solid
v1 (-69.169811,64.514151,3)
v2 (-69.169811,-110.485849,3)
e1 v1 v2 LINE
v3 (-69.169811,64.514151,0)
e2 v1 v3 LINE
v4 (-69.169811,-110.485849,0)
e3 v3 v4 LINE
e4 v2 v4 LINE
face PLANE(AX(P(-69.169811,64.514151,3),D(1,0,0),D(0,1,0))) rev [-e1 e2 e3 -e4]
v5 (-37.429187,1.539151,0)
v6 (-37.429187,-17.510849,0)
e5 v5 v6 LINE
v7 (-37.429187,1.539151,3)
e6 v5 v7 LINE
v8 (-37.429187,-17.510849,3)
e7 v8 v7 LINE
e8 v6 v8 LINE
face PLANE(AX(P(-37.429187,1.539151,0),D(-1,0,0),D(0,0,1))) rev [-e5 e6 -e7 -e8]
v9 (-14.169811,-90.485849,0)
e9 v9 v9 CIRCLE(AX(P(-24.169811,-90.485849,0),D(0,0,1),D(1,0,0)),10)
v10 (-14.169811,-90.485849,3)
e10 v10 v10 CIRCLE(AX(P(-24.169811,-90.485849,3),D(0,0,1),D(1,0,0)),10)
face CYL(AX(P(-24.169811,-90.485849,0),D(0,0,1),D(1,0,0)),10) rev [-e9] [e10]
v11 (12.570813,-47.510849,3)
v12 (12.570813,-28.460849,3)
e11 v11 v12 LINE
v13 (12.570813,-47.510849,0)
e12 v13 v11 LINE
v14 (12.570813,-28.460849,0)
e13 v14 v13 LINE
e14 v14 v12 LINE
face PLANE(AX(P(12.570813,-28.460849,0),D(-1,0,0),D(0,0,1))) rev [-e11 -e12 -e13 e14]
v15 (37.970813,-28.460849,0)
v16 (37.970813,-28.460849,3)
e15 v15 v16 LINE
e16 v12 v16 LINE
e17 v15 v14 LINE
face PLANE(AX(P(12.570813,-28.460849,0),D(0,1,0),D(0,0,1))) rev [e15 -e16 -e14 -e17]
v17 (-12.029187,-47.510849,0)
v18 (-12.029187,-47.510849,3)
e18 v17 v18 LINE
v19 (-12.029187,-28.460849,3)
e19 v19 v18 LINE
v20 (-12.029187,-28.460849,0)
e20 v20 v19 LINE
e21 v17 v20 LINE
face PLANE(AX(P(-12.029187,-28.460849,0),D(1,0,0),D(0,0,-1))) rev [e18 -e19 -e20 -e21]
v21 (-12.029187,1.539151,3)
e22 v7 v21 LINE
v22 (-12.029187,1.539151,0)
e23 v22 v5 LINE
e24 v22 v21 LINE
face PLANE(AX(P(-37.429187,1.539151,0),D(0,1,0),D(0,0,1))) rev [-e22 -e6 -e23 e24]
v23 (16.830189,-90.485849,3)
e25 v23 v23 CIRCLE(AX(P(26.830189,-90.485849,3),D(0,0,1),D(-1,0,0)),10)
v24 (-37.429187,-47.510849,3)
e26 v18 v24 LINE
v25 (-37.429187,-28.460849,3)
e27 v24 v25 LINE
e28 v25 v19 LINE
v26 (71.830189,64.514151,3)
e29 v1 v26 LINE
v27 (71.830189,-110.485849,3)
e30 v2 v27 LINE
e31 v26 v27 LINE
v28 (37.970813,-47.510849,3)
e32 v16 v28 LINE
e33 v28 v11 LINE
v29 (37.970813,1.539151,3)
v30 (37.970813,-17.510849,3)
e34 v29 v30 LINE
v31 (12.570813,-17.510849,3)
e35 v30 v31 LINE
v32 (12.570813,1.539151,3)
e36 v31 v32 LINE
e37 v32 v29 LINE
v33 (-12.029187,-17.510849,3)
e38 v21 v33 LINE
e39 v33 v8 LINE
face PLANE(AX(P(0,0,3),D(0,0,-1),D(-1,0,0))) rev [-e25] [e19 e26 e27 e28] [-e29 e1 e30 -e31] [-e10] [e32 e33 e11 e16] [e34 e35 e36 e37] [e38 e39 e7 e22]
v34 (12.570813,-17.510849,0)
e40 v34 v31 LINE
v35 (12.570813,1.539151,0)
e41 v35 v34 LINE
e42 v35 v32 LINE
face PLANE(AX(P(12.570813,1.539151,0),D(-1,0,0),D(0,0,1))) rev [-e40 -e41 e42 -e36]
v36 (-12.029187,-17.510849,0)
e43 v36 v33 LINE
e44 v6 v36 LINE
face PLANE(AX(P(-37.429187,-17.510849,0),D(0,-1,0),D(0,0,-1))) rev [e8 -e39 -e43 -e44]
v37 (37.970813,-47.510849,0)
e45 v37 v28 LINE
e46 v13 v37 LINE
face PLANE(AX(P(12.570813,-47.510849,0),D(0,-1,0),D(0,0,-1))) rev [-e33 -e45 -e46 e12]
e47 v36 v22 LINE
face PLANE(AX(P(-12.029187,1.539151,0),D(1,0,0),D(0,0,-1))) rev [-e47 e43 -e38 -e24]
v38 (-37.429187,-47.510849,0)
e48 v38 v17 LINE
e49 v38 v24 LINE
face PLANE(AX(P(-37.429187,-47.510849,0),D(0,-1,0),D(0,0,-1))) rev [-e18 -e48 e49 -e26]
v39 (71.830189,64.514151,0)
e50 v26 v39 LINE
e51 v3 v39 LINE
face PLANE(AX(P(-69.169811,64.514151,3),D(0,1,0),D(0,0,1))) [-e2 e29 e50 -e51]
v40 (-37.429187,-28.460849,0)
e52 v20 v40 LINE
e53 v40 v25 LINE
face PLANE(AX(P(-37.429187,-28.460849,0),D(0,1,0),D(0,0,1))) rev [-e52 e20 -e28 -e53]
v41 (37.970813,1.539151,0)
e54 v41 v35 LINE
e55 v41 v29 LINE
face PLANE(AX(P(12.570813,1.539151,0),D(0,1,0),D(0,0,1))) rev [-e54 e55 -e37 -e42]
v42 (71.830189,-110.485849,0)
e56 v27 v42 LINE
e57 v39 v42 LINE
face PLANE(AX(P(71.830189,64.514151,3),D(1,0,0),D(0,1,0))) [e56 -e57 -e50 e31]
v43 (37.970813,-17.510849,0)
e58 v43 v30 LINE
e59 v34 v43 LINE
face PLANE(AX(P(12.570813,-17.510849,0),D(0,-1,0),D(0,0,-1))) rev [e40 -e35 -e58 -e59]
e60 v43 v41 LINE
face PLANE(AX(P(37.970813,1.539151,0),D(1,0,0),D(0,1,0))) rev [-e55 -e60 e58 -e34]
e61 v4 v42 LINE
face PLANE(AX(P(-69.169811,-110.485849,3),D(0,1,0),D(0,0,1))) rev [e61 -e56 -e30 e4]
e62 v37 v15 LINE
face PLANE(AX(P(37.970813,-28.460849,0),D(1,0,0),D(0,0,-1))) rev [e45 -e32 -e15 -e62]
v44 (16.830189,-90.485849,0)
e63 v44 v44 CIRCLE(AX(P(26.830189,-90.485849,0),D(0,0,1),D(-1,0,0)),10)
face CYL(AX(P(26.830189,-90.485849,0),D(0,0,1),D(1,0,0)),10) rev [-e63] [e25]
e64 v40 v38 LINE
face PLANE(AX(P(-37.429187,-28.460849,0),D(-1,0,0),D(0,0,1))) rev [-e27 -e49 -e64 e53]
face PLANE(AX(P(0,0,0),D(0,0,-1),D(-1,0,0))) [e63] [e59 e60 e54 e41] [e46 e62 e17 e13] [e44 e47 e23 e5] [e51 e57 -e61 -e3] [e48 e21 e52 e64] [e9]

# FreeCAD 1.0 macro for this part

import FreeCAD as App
import Part
import Sketcher
Q = App.Units.Quantity


def add_polygon(sketch, points):
    """Adds a closed chain of lines whose ends are joined by coincident constraints."""
    first, n = sketch.GeometryCount, len(points)
    for a, b in zip(points, points[1:] + points[:1]):
        sketch.addGeometry(Part.LineSegment(App.Vector(*a, 0), App.Vector(*b, 0)), False)
    for i in range(n):
        sketch.addConstraint(Sketcher.Constraint("Coincident", first + i, 2, first + (i + 1) % n, 1))

doc = App.newDocument("Part")
body = doc.addObject("PartDesign::Body", "Body")

# Sketch on XY plane
sketch1 = body.newObject("Sketcher::SketchObject", "Sketch")
sketch1.AttachmentSupport = (doc.getObject("XY_Plane"), [""])
sketch1.MapMode = "FlatFace"
add_polygon(sketch1, [(-69.169811, 64.514151), (-69.169811, -110.485849), (71.830189, -110.485849), (71.830189, 64.514151)])  # lines 0-3
sketch1.addConstraint([
    Sketcher.Constraint("Vertical", 0),
    Sketcher.Constraint("Horizontal", 1),
    Sketcher.Constraint("Vertical", 2),
    Sketcher.Constraint("Horizontal", 3),
    Sketcher.Constraint("DistanceX", 1, 1, 1, 2, Q("141 mm")),
    Sketcher.Constraint("DistanceY", 0, 2, 0, 1, Q("175 mm")),
    Sketcher.Constraint("DistanceX", 0, 2, -1, 1, Q("69.169811 mm")),
    Sketcher.Constraint("DistanceY", 0, 2, -1, 1, Q("110.485849 mm")),
])
pad1 = body.newObject("PartDesign::Pad", "Pad")
pad1.Profile = sketch1
pad1.Length = 3

# Sketch on XY plane
sketch2 = body.newObject("Sketcher::SketchObject", "Sketch001")
sketch2.AttachmentSupport = (doc.getObject("XY_Plane"), [""])
sketch2.MapMode = "FlatFace"
sketch2.AttachmentOffset = App.Placement(App.Vector(0, 0, 3), App.Rotation())
add_polygon(sketch2, [(12.570813, -28.460849), (12.570813, -47.510849), (37.970813, -47.510849), (37.970813, -28.460849)])  # lines 0-3
add_polygon(sketch2, [(12.570813, 1.539151), (12.570813, -17.510849), (37.970813, -17.510849), (37.970813, 1.539151)])  # lines 4-7
add_polygon(sketch2, [(-37.429187, -28.460849), (-37.429187, -47.510849), (-12.029187, -47.510849), (-12.029187, -28.460849)])  # lines 8-11
add_polygon(sketch2, [(-37.429187, 1.539151), (-37.429187, -17.510849), (-12.029187, -17.510849), (-12.029187, 1.539151)])  # lines 12-15
sketch2.addConstraint([
    Sketcher.Constraint("Vertical", 0),
    Sketcher.Constraint("Horizontal", 1),
    Sketcher.Constraint("Vertical", 2),
    Sketcher.Constraint("Horizontal", 3),
    Sketcher.Constraint("Vertical", 4),
    Sketcher.Constraint("Horizontal", 5),
    Sketcher.Constraint("Vertical", 6),
    Sketcher.Constraint("Horizontal", 7),
    Sketcher.Constraint("Vertical", 8),
    Sketcher.Constraint("Horizontal", 9),
    Sketcher.Constraint("Vertical", 10),
    Sketcher.Constraint("Horizontal", 11),
    Sketcher.Constraint("Vertical", 12),
    Sketcher.Constraint("Horizontal", 13),
    Sketcher.Constraint("Vertical", 14),
    Sketcher.Constraint("Horizontal", 15),
    Sketcher.Constraint("Horizontal", 1, 2, 8, 2),
    Sketcher.Constraint("Horizontal", 3, 2, 10, 2),
    Sketcher.Constraint("Horizontal", 5, 2, 12, 2),
    Sketcher.Constraint("Horizontal", 7, 2, 14, 2),
    Sketcher.Constraint("Vertical", 3, 2, 4, 2),
    Sketcher.Constraint("Vertical", 2, 2, 5, 2),
    Sketcher.Constraint("Vertical", 11, 2, 12, 2),
    Sketcher.Constraint("Vertical", 10, 2, 13, 2),
    Sketcher.Constraint("Equal", 7, 9),
    Sketcher.Constraint("Equal", 2, 4),
    Sketcher.Constraint("DistanceX", 1, 1, 1, 2, Q("25.4 mm")),
    Sketcher.Constraint("DistanceY", 0, 2, 4, 2, Q("30 mm")),
    Sketcher.Constraint("DistanceX", 8, 2, 0, 2, Q("50 mm")),
    Sketcher.Constraint("DistanceY", 0, 2, 0, 1, Q("19.05 mm")),
    Sketcher.Constraint("DistanceY", 0, 2, -1, 1, Q("47.510849 mm")),
    Sketcher.Constraint("DistanceX", -1, 1, 0, 2, Q("12.570813 mm")),
])
pocket1 = body.newObject("PartDesign::Pocket", "Pocket")
pocket1.Profile = sketch2
pocket1.Type = "ThroughAll"
pocket1.Midplane = True

# Sketch on XY plane
sketch3 = body.newObject("Sketcher::SketchObject", "Sketch002")
sketch3.AttachmentSupport = (doc.getObject("XY_Plane"), [""])
sketch3.MapMode = "FlatFace"
sketch3.AttachmentOffset = App.Placement(App.Vector(0, 0, 3), App.Rotation())
sketch3.addGeometry([
    Part.Circle(App.Vector(-24.169811, -90.485849, 0), App.Vector(0, 0, 1), 10),
    Part.Circle(App.Vector(26.830189, -90.485849, 0), App.Vector(0, 0, 1), 10),
], False)
sketch3.addConstraint([
    Sketcher.Constraint("Equal", 0, 1),
    Sketcher.Constraint("Horizontal", 0, 3, 1, 3),
    Sketcher.Constraint("Diameter", 0, Q("20 mm")),
    Sketcher.Constraint("DistanceX", 0, 3, 1, 3, Q("51 mm")),
    Sketcher.Constraint("DistanceX", 0, 3, -1, 1, Q("24.169811 mm")),
    Sketcher.Constraint("DistanceY", 0, 3, -1, 1, Q("90.485849 mm")),
])
pocket2 = body.newObject("PartDesign::Pocket", "Pocket001")
pocket2.Profile = sketch3
pocket2.Type = "ThroughAll"

doc.recompute()
